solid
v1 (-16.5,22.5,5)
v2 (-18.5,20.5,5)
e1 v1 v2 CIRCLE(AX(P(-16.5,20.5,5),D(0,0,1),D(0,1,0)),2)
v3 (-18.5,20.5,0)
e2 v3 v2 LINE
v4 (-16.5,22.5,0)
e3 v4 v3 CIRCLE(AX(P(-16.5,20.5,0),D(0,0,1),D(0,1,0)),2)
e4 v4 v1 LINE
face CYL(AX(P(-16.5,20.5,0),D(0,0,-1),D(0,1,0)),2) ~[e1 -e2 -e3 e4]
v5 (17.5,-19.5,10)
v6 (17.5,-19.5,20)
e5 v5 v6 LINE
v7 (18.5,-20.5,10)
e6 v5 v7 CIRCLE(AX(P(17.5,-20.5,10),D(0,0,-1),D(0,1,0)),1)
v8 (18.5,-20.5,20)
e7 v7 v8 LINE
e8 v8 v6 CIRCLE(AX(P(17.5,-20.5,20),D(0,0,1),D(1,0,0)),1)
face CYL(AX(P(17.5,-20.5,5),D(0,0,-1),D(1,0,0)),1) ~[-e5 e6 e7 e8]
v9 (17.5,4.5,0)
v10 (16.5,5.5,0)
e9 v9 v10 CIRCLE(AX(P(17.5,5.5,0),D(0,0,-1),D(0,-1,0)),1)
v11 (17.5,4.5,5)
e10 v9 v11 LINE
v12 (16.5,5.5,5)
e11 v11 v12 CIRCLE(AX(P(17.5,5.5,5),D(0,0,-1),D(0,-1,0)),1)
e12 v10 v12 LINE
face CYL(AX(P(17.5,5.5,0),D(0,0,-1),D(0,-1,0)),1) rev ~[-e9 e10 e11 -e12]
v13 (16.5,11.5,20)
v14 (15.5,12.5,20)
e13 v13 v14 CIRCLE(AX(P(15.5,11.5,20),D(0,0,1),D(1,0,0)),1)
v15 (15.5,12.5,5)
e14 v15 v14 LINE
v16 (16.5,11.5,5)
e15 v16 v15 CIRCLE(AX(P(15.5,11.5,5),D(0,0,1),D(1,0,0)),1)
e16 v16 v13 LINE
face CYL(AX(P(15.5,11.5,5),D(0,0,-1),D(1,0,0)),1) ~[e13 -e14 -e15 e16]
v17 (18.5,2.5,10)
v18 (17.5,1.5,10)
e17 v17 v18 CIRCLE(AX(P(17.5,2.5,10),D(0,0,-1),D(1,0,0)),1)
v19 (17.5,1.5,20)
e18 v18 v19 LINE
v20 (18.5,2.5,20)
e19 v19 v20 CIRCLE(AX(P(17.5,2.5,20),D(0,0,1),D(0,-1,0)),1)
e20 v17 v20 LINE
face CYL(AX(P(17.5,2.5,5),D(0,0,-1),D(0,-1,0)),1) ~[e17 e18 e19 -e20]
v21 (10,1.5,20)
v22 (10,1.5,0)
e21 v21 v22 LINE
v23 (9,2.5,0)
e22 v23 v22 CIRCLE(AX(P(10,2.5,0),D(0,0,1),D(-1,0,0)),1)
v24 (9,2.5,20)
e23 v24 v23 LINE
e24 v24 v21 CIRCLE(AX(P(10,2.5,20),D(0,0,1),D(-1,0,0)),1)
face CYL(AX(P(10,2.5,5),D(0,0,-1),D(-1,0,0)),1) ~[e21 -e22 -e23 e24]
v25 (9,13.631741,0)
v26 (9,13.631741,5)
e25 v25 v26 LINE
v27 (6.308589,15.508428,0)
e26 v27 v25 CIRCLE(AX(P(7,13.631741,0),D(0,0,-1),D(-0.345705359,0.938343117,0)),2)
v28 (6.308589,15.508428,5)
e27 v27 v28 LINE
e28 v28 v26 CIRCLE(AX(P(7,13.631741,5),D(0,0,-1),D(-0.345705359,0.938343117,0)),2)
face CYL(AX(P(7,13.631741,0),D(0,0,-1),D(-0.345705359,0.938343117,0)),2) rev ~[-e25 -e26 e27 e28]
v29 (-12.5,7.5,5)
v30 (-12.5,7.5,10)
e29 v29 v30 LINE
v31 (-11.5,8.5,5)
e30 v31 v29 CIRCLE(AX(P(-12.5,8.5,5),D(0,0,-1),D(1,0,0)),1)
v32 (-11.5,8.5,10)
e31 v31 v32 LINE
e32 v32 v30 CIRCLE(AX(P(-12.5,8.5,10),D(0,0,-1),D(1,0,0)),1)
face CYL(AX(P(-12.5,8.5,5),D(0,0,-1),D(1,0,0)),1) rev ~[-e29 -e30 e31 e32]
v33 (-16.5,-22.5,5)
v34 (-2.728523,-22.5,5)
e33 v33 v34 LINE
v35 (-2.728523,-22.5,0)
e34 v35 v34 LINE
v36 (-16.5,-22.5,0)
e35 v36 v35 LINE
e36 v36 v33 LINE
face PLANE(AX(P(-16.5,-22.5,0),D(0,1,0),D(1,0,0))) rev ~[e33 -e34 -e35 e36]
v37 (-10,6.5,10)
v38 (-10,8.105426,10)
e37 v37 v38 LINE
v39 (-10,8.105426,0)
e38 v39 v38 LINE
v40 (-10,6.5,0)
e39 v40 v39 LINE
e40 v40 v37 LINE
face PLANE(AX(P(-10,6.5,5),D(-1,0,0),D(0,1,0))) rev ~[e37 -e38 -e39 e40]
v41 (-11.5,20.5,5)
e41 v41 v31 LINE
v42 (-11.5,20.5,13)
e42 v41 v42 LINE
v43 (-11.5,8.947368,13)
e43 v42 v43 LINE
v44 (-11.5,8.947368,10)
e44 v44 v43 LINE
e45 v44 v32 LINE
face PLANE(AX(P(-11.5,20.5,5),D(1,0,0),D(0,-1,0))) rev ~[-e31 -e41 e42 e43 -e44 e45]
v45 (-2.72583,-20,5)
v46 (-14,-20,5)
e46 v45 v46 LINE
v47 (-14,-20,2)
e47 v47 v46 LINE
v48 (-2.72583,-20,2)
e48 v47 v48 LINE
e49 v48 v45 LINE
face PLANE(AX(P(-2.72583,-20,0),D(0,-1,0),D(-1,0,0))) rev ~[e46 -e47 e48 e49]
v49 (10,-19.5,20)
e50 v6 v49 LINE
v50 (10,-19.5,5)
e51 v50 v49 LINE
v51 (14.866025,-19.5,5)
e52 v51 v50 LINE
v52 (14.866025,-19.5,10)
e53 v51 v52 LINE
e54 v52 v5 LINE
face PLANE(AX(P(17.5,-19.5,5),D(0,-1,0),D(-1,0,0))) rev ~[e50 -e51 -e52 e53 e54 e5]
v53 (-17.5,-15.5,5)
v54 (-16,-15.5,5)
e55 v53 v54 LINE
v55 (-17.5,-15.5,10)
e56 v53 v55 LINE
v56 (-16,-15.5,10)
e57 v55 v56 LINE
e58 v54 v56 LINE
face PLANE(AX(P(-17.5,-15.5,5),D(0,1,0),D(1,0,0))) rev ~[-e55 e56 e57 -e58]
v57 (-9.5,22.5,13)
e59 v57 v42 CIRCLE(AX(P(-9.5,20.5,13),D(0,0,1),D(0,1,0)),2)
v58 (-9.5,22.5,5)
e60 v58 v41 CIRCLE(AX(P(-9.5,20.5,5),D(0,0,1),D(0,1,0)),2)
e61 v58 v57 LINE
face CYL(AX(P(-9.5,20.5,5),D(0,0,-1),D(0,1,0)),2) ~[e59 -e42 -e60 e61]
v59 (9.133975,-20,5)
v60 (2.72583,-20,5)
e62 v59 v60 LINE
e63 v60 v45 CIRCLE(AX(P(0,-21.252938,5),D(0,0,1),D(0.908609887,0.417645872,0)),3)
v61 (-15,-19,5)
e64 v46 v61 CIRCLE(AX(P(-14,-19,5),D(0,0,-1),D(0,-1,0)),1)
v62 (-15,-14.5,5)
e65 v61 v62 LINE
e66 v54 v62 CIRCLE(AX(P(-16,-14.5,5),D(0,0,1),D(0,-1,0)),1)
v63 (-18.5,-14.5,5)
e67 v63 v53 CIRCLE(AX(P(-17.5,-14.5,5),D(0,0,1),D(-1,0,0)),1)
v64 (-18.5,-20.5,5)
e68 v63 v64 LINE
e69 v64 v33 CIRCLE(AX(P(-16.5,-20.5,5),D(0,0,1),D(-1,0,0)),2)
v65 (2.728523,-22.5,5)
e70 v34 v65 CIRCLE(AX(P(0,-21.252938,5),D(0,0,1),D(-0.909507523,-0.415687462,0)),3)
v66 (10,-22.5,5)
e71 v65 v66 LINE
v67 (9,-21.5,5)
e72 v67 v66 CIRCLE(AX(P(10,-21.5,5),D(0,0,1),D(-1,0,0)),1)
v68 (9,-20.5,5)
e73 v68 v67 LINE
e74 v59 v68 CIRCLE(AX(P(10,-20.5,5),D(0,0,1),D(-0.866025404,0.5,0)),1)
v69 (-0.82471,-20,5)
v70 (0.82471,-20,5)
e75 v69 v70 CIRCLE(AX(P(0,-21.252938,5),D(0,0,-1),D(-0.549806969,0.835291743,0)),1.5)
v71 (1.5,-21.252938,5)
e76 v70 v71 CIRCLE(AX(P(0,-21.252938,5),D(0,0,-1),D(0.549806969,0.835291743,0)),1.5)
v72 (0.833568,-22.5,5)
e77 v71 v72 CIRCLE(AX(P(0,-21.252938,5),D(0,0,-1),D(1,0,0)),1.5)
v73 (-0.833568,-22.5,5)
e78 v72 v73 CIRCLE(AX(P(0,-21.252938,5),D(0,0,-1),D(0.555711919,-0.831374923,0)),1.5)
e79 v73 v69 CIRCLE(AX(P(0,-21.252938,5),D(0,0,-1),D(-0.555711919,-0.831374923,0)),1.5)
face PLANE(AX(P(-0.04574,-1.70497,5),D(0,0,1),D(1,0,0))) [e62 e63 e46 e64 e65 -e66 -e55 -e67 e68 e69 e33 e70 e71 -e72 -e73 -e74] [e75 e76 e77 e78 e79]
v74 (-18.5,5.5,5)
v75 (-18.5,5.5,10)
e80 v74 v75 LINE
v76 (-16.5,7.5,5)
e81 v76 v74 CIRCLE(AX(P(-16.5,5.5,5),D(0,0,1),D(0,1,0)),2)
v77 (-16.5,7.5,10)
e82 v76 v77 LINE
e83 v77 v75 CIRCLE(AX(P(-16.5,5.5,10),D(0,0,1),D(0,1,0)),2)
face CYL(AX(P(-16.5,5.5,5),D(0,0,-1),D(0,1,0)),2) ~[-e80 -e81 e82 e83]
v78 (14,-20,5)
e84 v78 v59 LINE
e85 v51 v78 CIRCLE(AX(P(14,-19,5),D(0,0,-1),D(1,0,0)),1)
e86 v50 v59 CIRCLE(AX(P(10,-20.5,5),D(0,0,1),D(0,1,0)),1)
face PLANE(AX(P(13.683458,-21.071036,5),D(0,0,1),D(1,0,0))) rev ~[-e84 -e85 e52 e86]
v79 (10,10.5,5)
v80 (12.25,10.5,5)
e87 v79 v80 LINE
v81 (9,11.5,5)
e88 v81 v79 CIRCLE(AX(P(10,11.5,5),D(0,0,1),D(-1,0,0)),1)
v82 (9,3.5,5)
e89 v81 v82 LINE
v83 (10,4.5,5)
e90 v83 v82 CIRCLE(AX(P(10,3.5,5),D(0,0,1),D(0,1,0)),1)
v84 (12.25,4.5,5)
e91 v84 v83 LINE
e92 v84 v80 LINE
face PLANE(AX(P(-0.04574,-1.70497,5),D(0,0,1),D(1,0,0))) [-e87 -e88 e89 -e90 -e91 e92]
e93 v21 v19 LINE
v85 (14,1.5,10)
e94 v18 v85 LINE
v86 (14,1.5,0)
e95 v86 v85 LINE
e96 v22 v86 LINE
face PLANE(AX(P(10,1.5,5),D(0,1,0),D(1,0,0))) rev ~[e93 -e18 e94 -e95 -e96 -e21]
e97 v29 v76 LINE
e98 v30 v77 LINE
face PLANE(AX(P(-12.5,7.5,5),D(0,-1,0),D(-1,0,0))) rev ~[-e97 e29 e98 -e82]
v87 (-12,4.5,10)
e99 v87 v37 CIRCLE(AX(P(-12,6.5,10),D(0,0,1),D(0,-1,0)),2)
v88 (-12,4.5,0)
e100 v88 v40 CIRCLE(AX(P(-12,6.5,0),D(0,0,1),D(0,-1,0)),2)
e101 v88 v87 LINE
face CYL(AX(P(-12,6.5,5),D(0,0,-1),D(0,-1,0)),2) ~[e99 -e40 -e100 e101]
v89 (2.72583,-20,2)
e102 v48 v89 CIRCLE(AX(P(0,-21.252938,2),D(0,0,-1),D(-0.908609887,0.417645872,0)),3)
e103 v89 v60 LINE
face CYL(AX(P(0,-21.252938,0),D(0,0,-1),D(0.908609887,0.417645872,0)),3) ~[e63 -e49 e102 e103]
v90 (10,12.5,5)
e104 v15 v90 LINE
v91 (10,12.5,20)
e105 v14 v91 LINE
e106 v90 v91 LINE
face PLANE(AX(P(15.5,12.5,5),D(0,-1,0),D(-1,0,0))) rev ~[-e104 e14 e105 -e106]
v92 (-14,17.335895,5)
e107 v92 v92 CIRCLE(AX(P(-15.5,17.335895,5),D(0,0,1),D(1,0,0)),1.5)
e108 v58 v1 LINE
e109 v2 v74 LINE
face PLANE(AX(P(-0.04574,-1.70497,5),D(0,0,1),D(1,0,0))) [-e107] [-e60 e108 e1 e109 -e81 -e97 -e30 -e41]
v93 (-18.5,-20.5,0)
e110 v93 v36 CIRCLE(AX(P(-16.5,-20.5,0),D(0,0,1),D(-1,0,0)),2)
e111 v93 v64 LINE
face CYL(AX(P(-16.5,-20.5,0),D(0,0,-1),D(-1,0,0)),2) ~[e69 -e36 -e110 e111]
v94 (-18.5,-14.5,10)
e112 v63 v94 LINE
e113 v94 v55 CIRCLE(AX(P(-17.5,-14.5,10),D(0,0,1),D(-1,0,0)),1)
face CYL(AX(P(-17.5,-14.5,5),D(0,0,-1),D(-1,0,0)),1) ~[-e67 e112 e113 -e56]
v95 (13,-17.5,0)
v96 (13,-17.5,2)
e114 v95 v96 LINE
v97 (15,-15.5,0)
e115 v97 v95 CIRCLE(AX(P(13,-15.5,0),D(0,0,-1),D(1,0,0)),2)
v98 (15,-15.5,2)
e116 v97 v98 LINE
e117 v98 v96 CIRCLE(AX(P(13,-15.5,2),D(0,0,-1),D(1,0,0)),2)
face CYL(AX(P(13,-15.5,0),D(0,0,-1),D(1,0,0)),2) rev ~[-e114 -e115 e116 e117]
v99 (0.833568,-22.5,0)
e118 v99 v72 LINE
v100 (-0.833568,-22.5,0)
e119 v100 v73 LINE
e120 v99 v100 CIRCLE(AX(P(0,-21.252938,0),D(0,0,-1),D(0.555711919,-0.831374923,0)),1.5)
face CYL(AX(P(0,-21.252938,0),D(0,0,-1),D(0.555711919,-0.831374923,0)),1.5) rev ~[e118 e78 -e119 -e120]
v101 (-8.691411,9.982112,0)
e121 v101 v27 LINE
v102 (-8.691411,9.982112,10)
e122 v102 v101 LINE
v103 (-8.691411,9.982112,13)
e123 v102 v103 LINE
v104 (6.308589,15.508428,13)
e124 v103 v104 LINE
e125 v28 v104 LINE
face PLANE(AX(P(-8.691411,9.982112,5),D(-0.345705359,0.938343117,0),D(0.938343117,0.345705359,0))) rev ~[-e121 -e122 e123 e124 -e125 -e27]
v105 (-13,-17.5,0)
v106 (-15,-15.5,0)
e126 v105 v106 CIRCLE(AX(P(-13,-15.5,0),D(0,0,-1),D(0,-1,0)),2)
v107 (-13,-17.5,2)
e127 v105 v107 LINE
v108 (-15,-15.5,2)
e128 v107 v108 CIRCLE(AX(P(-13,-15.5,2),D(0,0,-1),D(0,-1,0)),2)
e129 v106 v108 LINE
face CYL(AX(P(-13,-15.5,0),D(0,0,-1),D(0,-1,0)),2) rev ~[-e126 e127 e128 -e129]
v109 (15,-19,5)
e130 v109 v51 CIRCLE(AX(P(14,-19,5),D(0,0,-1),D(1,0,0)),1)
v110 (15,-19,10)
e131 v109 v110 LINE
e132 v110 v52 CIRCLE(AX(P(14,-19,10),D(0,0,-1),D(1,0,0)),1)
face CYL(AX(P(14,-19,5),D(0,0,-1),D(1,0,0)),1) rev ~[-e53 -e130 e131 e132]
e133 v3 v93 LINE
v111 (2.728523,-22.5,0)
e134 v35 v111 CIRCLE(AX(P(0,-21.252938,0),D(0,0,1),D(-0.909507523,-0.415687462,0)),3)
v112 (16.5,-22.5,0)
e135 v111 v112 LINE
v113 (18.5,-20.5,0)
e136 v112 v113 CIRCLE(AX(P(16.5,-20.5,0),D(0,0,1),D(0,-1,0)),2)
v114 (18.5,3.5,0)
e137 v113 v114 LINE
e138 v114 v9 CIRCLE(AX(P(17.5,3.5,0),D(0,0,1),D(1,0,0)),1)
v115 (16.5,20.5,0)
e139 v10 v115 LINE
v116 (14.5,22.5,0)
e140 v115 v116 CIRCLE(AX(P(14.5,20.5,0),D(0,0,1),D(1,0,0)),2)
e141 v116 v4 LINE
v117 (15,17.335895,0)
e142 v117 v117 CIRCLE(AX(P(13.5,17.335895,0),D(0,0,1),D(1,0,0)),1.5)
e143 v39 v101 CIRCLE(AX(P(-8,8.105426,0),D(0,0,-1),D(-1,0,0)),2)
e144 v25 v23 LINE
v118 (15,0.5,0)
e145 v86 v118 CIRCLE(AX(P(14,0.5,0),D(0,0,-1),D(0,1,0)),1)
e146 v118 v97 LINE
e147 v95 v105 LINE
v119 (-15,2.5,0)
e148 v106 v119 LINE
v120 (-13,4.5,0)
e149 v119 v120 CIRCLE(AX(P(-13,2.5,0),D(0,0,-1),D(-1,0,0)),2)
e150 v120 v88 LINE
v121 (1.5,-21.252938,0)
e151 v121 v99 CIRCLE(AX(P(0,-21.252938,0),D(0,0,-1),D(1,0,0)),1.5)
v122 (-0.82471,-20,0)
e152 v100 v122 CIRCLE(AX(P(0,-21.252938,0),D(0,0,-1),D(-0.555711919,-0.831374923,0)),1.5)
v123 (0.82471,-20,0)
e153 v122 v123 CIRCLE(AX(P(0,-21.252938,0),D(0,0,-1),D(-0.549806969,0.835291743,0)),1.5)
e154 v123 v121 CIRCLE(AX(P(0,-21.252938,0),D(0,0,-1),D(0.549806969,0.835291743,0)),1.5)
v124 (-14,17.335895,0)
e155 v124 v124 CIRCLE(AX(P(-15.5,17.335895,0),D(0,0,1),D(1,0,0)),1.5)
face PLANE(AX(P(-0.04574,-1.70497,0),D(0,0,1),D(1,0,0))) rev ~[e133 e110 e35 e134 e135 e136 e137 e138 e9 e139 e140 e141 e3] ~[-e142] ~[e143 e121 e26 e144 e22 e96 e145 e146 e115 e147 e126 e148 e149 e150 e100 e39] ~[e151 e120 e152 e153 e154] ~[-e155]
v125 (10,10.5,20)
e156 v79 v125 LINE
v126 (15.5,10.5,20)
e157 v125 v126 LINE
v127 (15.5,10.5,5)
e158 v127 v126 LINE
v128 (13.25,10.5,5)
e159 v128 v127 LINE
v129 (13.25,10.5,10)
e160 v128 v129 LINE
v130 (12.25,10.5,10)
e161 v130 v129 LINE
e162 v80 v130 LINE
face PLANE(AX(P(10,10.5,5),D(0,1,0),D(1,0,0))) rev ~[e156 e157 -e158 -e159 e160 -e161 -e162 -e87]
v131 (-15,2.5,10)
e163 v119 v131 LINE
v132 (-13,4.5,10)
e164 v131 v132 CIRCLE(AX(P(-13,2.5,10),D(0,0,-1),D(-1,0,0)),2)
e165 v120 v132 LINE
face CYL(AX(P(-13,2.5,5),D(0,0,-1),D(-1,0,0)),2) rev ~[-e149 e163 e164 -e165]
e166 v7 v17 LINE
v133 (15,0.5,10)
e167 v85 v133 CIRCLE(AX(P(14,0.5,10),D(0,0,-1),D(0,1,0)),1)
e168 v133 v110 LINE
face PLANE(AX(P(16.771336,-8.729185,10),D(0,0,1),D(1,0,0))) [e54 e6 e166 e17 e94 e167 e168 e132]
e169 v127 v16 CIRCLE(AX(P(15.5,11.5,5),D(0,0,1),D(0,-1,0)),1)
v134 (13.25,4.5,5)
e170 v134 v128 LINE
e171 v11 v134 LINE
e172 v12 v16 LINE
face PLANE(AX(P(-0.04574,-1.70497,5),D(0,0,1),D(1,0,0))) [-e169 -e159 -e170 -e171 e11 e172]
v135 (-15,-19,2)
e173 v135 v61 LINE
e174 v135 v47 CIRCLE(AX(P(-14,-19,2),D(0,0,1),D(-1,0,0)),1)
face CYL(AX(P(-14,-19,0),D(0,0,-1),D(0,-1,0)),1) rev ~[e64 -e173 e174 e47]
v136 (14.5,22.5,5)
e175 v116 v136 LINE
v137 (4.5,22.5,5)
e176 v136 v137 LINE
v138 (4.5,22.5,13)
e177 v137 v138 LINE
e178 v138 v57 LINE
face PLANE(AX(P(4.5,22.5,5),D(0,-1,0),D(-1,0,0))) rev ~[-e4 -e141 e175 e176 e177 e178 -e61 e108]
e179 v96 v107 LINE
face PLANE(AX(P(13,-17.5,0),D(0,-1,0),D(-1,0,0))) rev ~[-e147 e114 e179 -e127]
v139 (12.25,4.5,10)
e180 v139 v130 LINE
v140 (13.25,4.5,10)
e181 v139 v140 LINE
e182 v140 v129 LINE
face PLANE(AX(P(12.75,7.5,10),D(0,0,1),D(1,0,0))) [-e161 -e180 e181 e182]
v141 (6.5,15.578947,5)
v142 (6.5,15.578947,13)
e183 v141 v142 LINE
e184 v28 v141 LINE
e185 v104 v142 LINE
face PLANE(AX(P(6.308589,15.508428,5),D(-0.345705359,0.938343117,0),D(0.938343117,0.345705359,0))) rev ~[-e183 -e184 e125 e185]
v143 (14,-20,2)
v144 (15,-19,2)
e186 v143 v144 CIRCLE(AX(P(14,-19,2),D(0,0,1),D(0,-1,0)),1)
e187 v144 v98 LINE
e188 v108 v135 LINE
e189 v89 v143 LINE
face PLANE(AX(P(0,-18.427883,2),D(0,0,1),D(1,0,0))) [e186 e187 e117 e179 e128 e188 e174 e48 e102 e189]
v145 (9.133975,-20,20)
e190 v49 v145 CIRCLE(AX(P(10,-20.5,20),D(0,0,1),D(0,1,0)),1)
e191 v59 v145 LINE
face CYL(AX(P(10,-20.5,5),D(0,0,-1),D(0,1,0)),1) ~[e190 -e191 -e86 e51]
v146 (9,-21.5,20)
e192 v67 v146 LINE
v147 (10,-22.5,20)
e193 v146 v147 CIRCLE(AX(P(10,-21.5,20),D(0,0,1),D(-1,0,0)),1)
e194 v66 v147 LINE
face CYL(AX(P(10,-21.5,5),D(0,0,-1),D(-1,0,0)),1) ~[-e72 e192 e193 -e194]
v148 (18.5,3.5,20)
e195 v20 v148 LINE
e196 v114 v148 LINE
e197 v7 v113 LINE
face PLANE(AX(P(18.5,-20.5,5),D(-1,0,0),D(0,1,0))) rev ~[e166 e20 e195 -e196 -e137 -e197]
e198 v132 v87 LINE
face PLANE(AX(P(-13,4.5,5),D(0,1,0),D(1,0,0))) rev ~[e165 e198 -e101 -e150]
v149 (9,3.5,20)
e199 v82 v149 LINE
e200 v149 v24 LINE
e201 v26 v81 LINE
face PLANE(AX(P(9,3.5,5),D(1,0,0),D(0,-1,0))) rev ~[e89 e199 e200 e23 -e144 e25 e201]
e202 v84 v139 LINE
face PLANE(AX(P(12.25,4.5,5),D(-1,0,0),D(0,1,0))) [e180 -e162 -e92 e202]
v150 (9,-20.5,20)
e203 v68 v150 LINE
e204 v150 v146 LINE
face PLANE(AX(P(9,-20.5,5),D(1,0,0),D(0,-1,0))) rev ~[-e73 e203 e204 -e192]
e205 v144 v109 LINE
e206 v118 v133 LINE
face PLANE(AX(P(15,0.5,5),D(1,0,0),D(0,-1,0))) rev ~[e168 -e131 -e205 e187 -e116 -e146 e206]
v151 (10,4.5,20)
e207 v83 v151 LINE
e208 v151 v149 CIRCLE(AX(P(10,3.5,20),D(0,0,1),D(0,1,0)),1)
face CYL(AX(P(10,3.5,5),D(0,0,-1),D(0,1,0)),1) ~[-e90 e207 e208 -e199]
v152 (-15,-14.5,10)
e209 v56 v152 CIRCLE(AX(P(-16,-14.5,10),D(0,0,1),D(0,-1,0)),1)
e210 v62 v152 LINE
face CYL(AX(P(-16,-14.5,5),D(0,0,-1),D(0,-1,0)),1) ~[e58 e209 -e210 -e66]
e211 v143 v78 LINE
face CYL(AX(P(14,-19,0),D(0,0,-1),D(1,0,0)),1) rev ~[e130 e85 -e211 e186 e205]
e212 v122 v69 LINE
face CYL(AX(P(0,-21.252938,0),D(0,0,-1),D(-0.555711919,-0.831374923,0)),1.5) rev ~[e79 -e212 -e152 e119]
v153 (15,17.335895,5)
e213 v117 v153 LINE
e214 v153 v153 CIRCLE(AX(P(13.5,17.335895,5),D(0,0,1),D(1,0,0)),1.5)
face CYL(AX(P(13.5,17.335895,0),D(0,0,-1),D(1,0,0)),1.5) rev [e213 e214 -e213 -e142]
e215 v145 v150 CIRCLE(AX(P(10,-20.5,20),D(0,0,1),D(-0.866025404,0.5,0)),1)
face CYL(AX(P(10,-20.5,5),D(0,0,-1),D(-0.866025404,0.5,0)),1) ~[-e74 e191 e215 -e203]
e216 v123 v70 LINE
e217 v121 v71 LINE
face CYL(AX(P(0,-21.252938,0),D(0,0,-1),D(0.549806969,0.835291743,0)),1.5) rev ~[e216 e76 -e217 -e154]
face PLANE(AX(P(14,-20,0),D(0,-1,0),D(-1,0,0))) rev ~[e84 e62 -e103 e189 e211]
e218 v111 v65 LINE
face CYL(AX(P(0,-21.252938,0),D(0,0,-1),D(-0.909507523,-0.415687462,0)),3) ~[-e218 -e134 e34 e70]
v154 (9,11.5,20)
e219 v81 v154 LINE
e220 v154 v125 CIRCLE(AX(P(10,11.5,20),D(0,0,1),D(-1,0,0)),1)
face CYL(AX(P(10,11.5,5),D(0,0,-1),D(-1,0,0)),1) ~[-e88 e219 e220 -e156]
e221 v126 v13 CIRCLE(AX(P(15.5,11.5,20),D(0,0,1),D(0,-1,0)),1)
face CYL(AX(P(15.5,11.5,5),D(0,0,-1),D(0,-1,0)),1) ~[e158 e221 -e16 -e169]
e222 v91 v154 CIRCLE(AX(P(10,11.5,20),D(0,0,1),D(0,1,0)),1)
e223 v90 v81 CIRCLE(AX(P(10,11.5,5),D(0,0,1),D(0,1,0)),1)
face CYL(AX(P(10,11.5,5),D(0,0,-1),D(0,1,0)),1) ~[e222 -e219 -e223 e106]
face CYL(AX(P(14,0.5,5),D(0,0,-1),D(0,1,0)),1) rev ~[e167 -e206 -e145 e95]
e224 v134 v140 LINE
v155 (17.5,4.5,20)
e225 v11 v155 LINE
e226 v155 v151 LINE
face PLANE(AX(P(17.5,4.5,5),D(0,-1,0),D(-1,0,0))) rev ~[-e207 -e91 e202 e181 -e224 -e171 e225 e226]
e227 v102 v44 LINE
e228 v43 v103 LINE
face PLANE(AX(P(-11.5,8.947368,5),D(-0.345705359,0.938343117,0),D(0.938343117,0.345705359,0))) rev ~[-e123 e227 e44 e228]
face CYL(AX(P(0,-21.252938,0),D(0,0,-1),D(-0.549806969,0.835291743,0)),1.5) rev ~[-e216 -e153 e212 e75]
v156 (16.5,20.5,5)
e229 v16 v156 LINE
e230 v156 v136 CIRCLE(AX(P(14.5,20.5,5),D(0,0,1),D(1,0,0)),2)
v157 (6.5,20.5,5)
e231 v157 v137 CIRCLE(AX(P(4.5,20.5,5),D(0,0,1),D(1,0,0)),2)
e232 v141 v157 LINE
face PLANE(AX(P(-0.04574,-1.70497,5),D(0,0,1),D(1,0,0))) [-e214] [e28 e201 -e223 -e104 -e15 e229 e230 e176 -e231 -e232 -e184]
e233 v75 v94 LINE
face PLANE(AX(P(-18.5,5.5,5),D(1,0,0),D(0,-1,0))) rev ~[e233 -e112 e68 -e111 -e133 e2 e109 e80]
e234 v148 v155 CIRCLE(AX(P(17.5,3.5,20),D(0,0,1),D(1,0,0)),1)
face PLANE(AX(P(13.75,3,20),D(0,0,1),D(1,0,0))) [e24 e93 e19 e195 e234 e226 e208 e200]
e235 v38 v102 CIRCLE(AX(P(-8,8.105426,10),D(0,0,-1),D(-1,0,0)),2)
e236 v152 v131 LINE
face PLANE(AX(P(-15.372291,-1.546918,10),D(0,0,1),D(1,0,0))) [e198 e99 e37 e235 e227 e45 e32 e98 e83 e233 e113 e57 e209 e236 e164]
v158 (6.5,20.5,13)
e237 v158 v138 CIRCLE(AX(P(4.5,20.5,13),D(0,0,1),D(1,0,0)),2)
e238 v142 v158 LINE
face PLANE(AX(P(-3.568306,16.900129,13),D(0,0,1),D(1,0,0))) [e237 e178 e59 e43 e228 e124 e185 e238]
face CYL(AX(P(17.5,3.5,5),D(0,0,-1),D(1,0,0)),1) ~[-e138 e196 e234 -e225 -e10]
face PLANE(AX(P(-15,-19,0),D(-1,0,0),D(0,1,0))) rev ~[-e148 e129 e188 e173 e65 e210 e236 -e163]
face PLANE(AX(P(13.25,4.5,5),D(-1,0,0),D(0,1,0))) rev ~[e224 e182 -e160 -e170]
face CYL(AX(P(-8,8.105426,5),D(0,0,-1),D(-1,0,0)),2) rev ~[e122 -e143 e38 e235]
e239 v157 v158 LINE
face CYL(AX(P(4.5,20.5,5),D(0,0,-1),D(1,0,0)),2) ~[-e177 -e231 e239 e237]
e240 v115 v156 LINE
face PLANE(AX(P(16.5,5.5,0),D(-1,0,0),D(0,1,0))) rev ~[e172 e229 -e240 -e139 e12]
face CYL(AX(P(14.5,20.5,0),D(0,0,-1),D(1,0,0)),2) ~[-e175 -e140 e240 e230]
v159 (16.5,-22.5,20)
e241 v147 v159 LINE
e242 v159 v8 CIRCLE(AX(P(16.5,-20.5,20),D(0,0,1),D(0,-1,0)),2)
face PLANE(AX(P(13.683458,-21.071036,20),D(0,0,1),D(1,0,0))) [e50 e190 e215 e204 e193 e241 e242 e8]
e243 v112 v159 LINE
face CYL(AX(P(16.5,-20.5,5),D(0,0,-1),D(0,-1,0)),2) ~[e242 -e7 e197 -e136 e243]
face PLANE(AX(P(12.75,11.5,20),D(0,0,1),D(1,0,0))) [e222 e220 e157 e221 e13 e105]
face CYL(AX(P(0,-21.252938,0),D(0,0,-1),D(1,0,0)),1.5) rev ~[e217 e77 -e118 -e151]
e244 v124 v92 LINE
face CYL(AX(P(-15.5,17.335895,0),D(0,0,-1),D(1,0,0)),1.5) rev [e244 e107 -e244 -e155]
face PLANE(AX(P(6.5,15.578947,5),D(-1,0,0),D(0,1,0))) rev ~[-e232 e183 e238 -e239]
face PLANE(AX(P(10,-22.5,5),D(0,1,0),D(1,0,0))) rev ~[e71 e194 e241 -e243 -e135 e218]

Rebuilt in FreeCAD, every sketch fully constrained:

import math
import FreeCAD as App
import Part
import Sketcher

doc = App.newDocument("Part")
params = doc.addObject("Spreadsheet::Sheet", "Params")
for row, (alias, value) in enumerate([
    ("sketch1_radius", "3 mm"),
    ("sketch1_radius2", "1 mm"),
    ("sketch1_radius3", "2 mm"),
    ("sketch1_width", "26 mm"),
    ("sketch1_height", "3.5 mm"),
    ("pad1_length", "2 mm"),
    ("sketch2_diameter", "3 mm"),
    ("sketch2_radius", "1 mm"),
    ("sketch2_radius2", "3 mm"),
    ("sketch2_width", "31 mm"),
    ("sketch2_width2", "1 mm"),
    ("pad2_length", "5 mm"),
    ("sketch3_radius", "1 mm"),
    ("sketch3_radius2", "2 mm"),
    ("sketch3_width", "1 mm"),
    ("sketch3_width2", "4 mm"),
    ("sketch3_height", "17 mm"),
    ("pad3_length", "5 mm"),
    ("sketch4_radius", "2 mm"),
    ("sketch4_width", "14 mm"),
    ("pad4_length", "8 mm"),
    ("sketch5_radius", "1 mm"),
    ("sketch5_radius2", "2 mm"),
    ("sketch5_width", "6.5 mm"),
    ("pad5_length", "15 mm"),
    ("sketch6_radius", "1 mm"),
    ("sketch6_height", "1 mm"),
    ("sketch6_width", "5.5 mm"),
    ("sketch6_width2", "7.5 mm"),
    ("pad6_length", "15 mm"),
    ("sketch7_radius", "1 mm"),
    ("sketch7_width", "1 mm"),
    ("sketch7_height", "6 mm"),
    ("sketch7_height2", "23 mm"),
    ("sketch7_width2", "3.5 mm"),
    ("pad7_length", "5 mm"),
], start=1):
    params.set(f"A{row}", alias)
    params.set(f"B{row}", "=" + value)
    params.setAlias(f"B{row}", alias)

body = doc.addObject("PartDesign::Body", "Body")

sketch1 = body.newObject("Sketcher::SketchObject", "Sketch")
sketch1.AttachmentSupport = (doc.getObject("XY_Plane"), [""])
sketch1.MapMode = "FlatFace"
sketch1.addGeometry([
    Part.LineSegment(App.Vector(-14, -20, 0), App.Vector(-2.72583, -20, 0)),
    Part.ArcOfCircle(Part.Circle(App.Vector(0, -21.252938, 0), App.Vector(0, 0, 1), 3), math.radians(24.68605), math.radians(155.31395)),
    Part.LineSegment(App.Vector(2.72583, -20, 0), App.Vector(14, -20, 0)),
    Part.ArcOfCircle(Part.Circle(App.Vector(14, -19, 0), App.Vector(0, 0, 1), 1), math.radians(-90), math.radians(0)),
    Part.LineSegment(App.Vector(15, -19, 0), App.Vector(15, -15.5, 0)),
    Part.ArcOfCircle(Part.Circle(App.Vector(13, -15.5, 0), App.Vector(0, 0, 1), 2), math.radians(-90), math.radians(0)),
    Part.LineSegment(App.Vector(13, -17.5, 0), App.Vector(-13, -17.5, 0)),
    Part.ArcOfCircle(Part.Circle(App.Vector(-13, -15.5, 0), App.Vector(0, 0, 1), 2), math.radians(180), math.radians(270)),
    Part.LineSegment(App.Vector(-15, -15.5, 0), App.Vector(-15, -19, 0)),
    Part.ArcOfCircle(Part.Circle(App.Vector(-14, -19, 0), App.Vector(0, 0, 1), 1), math.radians(180), math.radians(270)),
], False)
sketch1.addConstraint([
    Sketcher.Constraint("Coincident", 0, 2, 1, 2),
    Sketcher.Constraint("Coincident", 1, 1, 2, 1),
    Sketcher.Constraint("Tangent", 2, 2, 3, 1),
    Sketcher.Constraint("Tangent", 3, 2, 4, 1),
    Sketcher.Constraint("Tangent", 4, 2, 5, 2),
    Sketcher.Constraint("Tangent", 5, 1, 6, 1),
    Sketcher.Constraint("Tangent", 6, 2, 7, 2),
    Sketcher.Constraint("Tangent", 7, 1, 8, 1),
    Sketcher.Constraint("Tangent", 8, 2, 9, 1),
    Sketcher.Constraint("Tangent", 9, 2, 0, 1),
    Sketcher.Constraint("Horizontal", 0),
    Sketcher.Constraint("Horizontal", 2),
    Sketcher.Constraint("Vertical", 4),
    Sketcher.Constraint("Horizontal", 6),
    Sketcher.Constraint("Vertical", 8),
    Sketcher.Constraint("Equal", 5, 7),
    Sketcher.Constraint("Equal", 3, 9),
    Sketcher.Constraint("Symmetric", 3, 3, 9, 3, -2),
    Sketcher.Constraint("PointOnObject", 1, 3, -2),
    Sketcher.Constraint("Radius", 1, 3.0),
    Sketcher.Constraint("Radius", 3, 1.0),
    Sketcher.Constraint("Radius", 5, 2.0),
    Sketcher.Constraint("DistanceX", 6, 2, 6, 1, 26.0),
    Sketcher.Constraint("DistanceY", 4, 1, 4, 2, 3.5),
    Sketcher.Constraint("DistanceY", 3, 3, -1, 1, 19.0),
    Sketcher.Constraint("DistanceX", 0, 1, 0, 2, 11.27417),
])
sketch1.setExpression("Constraints[19]", "Params.sketch1_radius")
sketch1.setExpression("Constraints[20]", "Params.sketch1_radius2")
sketch1.setExpression("Constraints[21]", "Params.sketch1_radius3")
sketch1.setExpression("Constraints[22]", "Params.sketch1_width")
sketch1.setExpression("Constraints[23]", "Params.sketch1_height")
pad1 = body.newObject("PartDesign::Pad", "Pad")
pad1.Profile = sketch1
pad1.setExpression("Length", "Params.pad1_length")

sketch2 = body.newObject("Sketcher::SketchObject", "Sketch001")
sketch2.AttachmentSupport = (doc.getObject("XY_Plane"), [""])
sketch2.MapMode = "FlatFace"
sketch2.addGeometry([
    Part.ArcOfCircle(Part.Circle(App.Vector(17.5, 5.5, 0), App.Vector(0, 0, 1), 1), math.radians(180), math.radians(270)),
    Part.LineSegment(App.Vector(16.5, 5.5, 0), App.Vector(16.5, 20.5, 0)),
    Part.ArcOfCircle(Part.Circle(App.Vector(14.5, 20.5, 0), App.Vector(0, 0, 1), 2), math.radians(0), math.radians(90)),
    Part.LineSegment(App.Vector(14.5, 22.5, 0), App.Vector(-16.5, 22.5, 0)),
    Part.ArcOfCircle(Part.Circle(App.Vector(-16.5, 20.5, 0), App.Vector(0, 0, 1), 2), math.radians(90), math.radians(180)),
    Part.LineSegment(App.Vector(-18.5, 20.5, 0), App.Vector(-18.5, -20.5, 0)),
    Part.ArcOfCircle(Part.Circle(App.Vector(-16.5, -20.5, 0), App.Vector(0, 0, 1), 2), math.radians(180), math.radians(270)),
    Part.LineSegment(App.Vector(-16.5, -22.5, 0), App.Vector(-2.728523, -22.5, 0)),
    Part.ArcOfCircle(Part.Circle(App.Vector(0, -21.252938, 0), App.Vector(0, 0, 1), 3), math.radians(-155.437383), math.radians(-24.562617)),
    Part.LineSegment(App.Vector(2.728523, -22.5, 0), App.Vector(16.5, -22.5, 0)),
    Part.ArcOfCircle(Part.Circle(App.Vector(16.5, -20.5, 0), App.Vector(0, 0, 1), 2), math.radians(-90), math.radians(0)),
    Part.LineSegment(App.Vector(18.5, -20.5, 0), App.Vector(18.5, 3.5, 0)),
    Part.ArcOfCircle(Part.Circle(App.Vector(17.5, 3.5, 0), App.Vector(0, 0, 1), 1), math.radians(0), math.radians(90)),
    Part.ArcOfCircle(Part.Circle(App.Vector(0, -21.252938, 0), App.Vector(0, 0, 1), 1.5), math.radians(0), math.radians(56.646229)),
    Part.ArcOfCircle(Part.Circle(App.Vector(0, -21.252938, 0), App.Vector(0, 0, 1), 1.5), math.radians(-56.240236), math.radians(0)),
    Part.ArcOfCircle(Part.Circle(App.Vector(0, -21.252938, 0), App.Vector(0, 0, 1), 1.5), math.radians(-123.759764), math.radians(-56.240236)),
    Part.ArcOfCircle(Part.Circle(App.Vector(0, -21.252938, 0), App.Vector(0, 0, 1), 1.5), math.radians(123.353771), math.radians(236.240236)),
    Part.ArcOfCircle(Part.Circle(App.Vector(0, -21.252938, 0), App.Vector(0, 0, 1), 1.5), math.radians(56.646229), math.radians(123.353771)),
    Part.LineSegment(App.Vector(14, -20, 0), App.Vector(2.72583, -20, 0)),
    Part.ArcOfCircle(Part.Circle(App.Vector(0, -21.252938, 0), App.Vector(0, 0, 1), 3), math.radians(24.68605), math.radians(155.31395)),
    Part.LineSegment(App.Vector(-2.72583, -20, 0), App.Vector(-14, -20, 0)),
    Part.ArcOfCircle(Part.Circle(App.Vector(-14, -19, 0), App.Vector(0, 0, 1), 1), math.radians(180), math.radians(270)),
    Part.LineSegment(App.Vector(-15, -19, 0), App.Vector(-15, 2.5, 0)),
    Part.ArcOfCircle(Part.Circle(App.Vector(-13, 2.5, 0), App.Vector(0, 0, 1), 2), math.radians(90), math.radians(180)),
    Part.LineSegment(App.Vector(-13, 4.5, 0), App.Vector(-12, 4.5, 0)),
    Part.ArcOfCircle(Part.Circle(App.Vector(-12, 6.5, 0), App.Vector(0, 0, 1), 2), math.radians(-90), math.radians(0)),
    Part.LineSegment(App.Vector(-10, 6.5, 0), App.Vector(-10, 8.105426, 0)),
    Part.ArcOfCircle(Part.Circle(App.Vector(-8, 8.105426, 0), App.Vector(0, 0, 1), 2), math.radians(110.224859), math.radians(180)),
    Part.LineSegment(App.Vector(-8.691411, 9.982112, 0), App.Vector(6.308589, 15.508428, 0)),
    Part.ArcOfCircle(Part.Circle(App.Vector(7, 13.631741, 0), App.Vector(0, 0, 1), 2), math.radians(0), math.radians(110.224859)),
    Part.LineSegment(App.Vector(9, 13.631741, 0), App.Vector(9, 2.5, 0)),
    Part.ArcOfCircle(Part.Circle(App.Vector(10, 2.5, 0), App.Vector(0, 0, 1), 1), math.radians(180), math.radians(270)),
    Part.LineSegment(App.Vector(10, 1.5, 0), App.Vector(14, 1.5, 0)),
    Part.ArcOfCircle(Part.Circle(App.Vector(14, 0.5, 0), App.Vector(0, 0, 1), 1), math.radians(0), math.radians(90)),
    Part.LineSegment(App.Vector(15, 0.5, 0), App.Vector(15, -19, 0)),
    Part.ArcOfCircle(Part.Circle(App.Vector(14, -19, 0), App.Vector(0, 0, 1), 1), math.radians(-90), math.radians(0)),
    Part.Circle(App.Vector(-15.5, 17.335895, 0), App.Vector(0, 0, 1), 1.5),
    Part.Circle(App.Vector(13.5, 17.335895, 0), App.Vector(0, 0, 1), 1.5),
], False)
sketch2.addConstraint([
    Sketcher.Constraint("Tangent", 0, 1, 1, 1),
    Sketcher.Constraint("Tangent", 1, 2, 2, 1),
    Sketcher.Constraint("Tangent", 2, 2, 3, 1),
    Sketcher.Constraint("Tangent", 3, 2, 4, 1),
    Sketcher.Constraint("Tangent", 4, 2, 5, 1),
    Sketcher.Constraint("Tangent", 5, 2, 6, 1),
    Sketcher.Constraint("Tangent", 6, 2, 7, 1),
    Sketcher.Constraint("Coincident", 7, 2, 8, 1),
    Sketcher.Constraint("Coincident", 8, 2, 9, 1),
    Sketcher.Constraint("Tangent", 9, 2, 10, 1),
    Sketcher.Constraint("Tangent", 10, 2, 11, 1),
    Sketcher.Constraint("Tangent", 11, 2, 12, 1),
    Sketcher.Constraint("Tangent", 12, 2, 0, 2),
    Sketcher.Constraint("Tangent", 13, 1, 14, 2),
    Sketcher.Constraint("Tangent", 14, 1, 15, 2),
    Sketcher.Constraint("Tangent", 15, 1, 16, 2),
    Sketcher.Constraint("Tangent", 16, 1, 17, 2),
    Sketcher.Constraint("Tangent", 17, 1, 13, 2),
    Sketcher.Constraint("Coincident", 18, 2, 19, 1),
    Sketcher.Constraint("Coincident", 19, 2, 20, 1),
    Sketcher.Constraint("Tangent", 20, 2, 21, 2),
    Sketcher.Constraint("Tangent", 21, 1, 22, 1),
    Sketcher.Constraint("Tangent", 22, 2, 23, 2),
    Sketcher.Constraint("Tangent", 23, 1, 24, 1),
    Sketcher.Constraint("Tangent", 24, 2, 25, 1),
    Sketcher.Constraint("Tangent", 25, 2, 26, 1),
    Sketcher.Constraint("Tangent", 26, 2, 27, 2),
    Sketcher.Constraint("Tangent", 27, 1, 28, 1),
    Sketcher.Constraint("Tangent", 28, 2, 29, 2),
    Sketcher.Constraint("Tangent", 29, 1, 30, 1),
    Sketcher.Constraint("Tangent", 30, 2, 31, 1),
    Sketcher.Constraint("Tangent", 31, 2, 32, 1),
    Sketcher.Constraint("Tangent", 32, 2, 33, 2),
    Sketcher.Constraint("Tangent", 33, 1, 34, 1),
    Sketcher.Constraint("Tangent", 34, 2, 35, 2),
    Sketcher.Constraint("Tangent", 35, 1, 18, 1),
    Sketcher.Constraint("Vertical", 1),
    Sketcher.Constraint("Horizontal", 3),
    Sketcher.Constraint("Vertical", 5),
    Sketcher.Constraint("Horizontal", 7),
    Sketcher.Constraint("Horizontal", 9),
    Sketcher.Constraint("Vertical", 11),
    Sketcher.Constraint("Horizontal", 18),
    Sketcher.Constraint("Horizontal", 20),
    Sketcher.Constraint("Vertical", 22),
    Sketcher.Constraint("Horizontal", 24),
    Sketcher.Constraint("Vertical", 26),
    Sketcher.Constraint("Vertical", 30),
    Sketcher.Constraint("Horizontal", 32),
    Sketcher.Constraint("Vertical", 34),
    Sketcher.Constraint("Coincident", 13, 3, 8, 3),
    Sketcher.Constraint("Coincident", 15, 3, 8, 3),
    Sketcher.Constraint("Coincident", 19, 3, 8, 3),
    Sketcher.Constraint("Equal", 2, 4),
    Sketcher.Constraint("Equal", 4, 6),
    Sketcher.Constraint("Equal", 6, 10),
    Sketcher.Constraint("Equal", 0, 12),
    Sketcher.Constraint("Equal", 8, 19),
    Sketcher.Constraint("Equal", 12, 21),
    Sketcher.Constraint("Equal", 10, 23),
    Sketcher.Constraint("Equal", 23, 25),
    Sketcher.Constraint("Equal", 25, 27),
    Sketcher.Constraint("Equal", 27, 29),
    Sketcher.Constraint("Equal", 21, 31),
    Sketcher.Constraint("Equal", 31, 33),
    Sketcher.Constraint("Equal", 33, 35),
    Sketcher.Constraint("Equal", 17, 36),
    Sketcher.Constraint("Equal", 36, 37),
    Sketcher.Constraint("Symmetric", 4, 3, 10, 3, -1, 1),
    Sketcher.Constraint("Symmetric", 21, 3, 35, 3, -2),
    Sketcher.Constraint("Symmetric", 7, 2, 8, 2, -2),
    Sketcher.Constraint("Horizontal", 23, 3, 31, 3),
    Sketcher.Constraint("Horizontal", 36, 3, 37, 3),
    Sketcher.Constraint("Horizontal", 19, 3, 13, 1),
    Sketcher.Constraint("Horizontal", 9, 2, 14, 1),
    Sketcher.Constraint("Horizontal", 14, 1, 15, 1),
    Sketcher.Constraint("Horizontal", 16, 1, 17, 1),
    Sketcher.Constraint("Horizontal", 17, 1, 18, 2),
    Sketcher.Constraint("Horizontal", 12, 2, 23, 1),
    Sketcher.Constraint("Vertical", 0, 3, 12, 3),
    Sketcher.Constraint("Vertical", 10, 3, 0, 1),
    Sketcher.Constraint("Diameter", 36, 3.0),
    Sketcher.Constraint("Radius", 0, 1.0),
    Sketcher.Constraint("Radius", 8, 3.0),
    Sketcher.Constraint("DistanceX", 3, 2, 3, 1, 31.0),
    Sketcher.Constraint("DistanceX", 24, 1, 24, 2, 1.0),
    Sketcher.Constraint("DistanceX", 32, 1, 32, 2, 4.0),
    Sketcher.Constraint("DistanceY", 1, 1, 1, 2, 15.0),
    Sketcher.Constraint("DistanceY", 5, 2, 5, 1, 41.0),
    Sketcher.Constraint("DistanceY", 22, 1, 22, 2, 21.5),
    Sketcher.Constraint("DistanceX", 21, 3, -1, 1, 14.0),
    Sketcher.Constraint("DistanceX", 4, 3, 36, 3, 1.0),
    Sketcher.Constraint("DistanceX", 37, 3, 2, 3, 1.0),
    Sketcher.Constraint("DistanceX", 18, 2, 18, 1, 11.27417),
    Sketcher.Constraint("DistanceY", 30, 2, 30, 1, 11.131741),
    Sketcher.Constraint("DistanceY", 26, 1, 26, 2, 1.605426),
    Sketcher.Constraint("DistanceY", 27, 3, 36, 3, 9.230469),
])
sketch2.setExpression("Constraints[81]", "Params.sketch2_diameter")
sketch2.setExpression("Constraints[82]", "Params.sketch2_radius")
sketch2.setExpression("Constraints[83]", "Params.sketch2_radius2")
sketch2.setExpression("Constraints[84]", "Params.sketch2_width")
sketch2.setExpression("Constraints[85]", "Params.sketch2_width2")
pad2 = body.newObject("PartDesign::Pad", "Pad001")
pad2.Profile = sketch2
pad2.setExpression("Length", "Params.pad2_length")

sketch3 = body.newObject("Sketcher::SketchObject", "Sketch002")
sketch3.AttachmentSupport = (doc.getObject("XY_Plane"), [""])
sketch3.MapMode = "FlatFace"
sketch3.AttachmentOffset = App.Placement(App.Vector(0, 0, 5), App.Rotation())
sketch3.addGeometry([
    Part.ArcOfCircle(Part.Circle(App.Vector(-17.5, -14.5, 0), App.Vector(0, 0, 1), 1), math.radians(180), math.radians(270)),
    Part.LineSegment(App.Vector(-17.5, -15.5, 0), App.Vector(-16, -15.5, 0)),
    Part.ArcOfCircle(Part.Circle(App.Vector(-16, -14.5, 0), App.Vector(0, 0, 1), 1), math.radians(-90), math.radians(0)),
    Part.LineSegment(App.Vector(-15, -14.5, 0), App.Vector(-15, 2.5, 0)),
    Part.ArcOfCircle(Part.Circle(App.Vector(-13, 2.5, 0), App.Vector(0, 0, 1), 2), math.radians(90), math.radians(180)),
    Part.LineSegment(App.Vector(-13, 4.5, 0), App.Vector(-12, 4.5, 0)),
    Part.ArcOfCircle(Part.Circle(App.Vector(-12, 6.5, 0), App.Vector(0, 0, 1), 2), math.radians(-90), math.radians(0)),
    Part.LineSegment(App.Vector(-10, 6.5, 0), App.Vector(-10, 8.105426, 0)),
    Part.ArcOfCircle(Part.Circle(App.Vector(-8, 8.105426, 0), App.Vector(0, 0, 1), 2), math.radians(110.224859), math.radians(180)),
    Part.LineSegment(App.Vector(-8.691411, 9.982112, 0), App.Vector(-11.5, 8.947368, 0)),
    Part.LineSegment(App.Vector(-11.5, 8.947368, 0), App.Vector(-11.5, 8.5, 0)),
    Part.ArcOfCircle(Part.Circle(App.Vector(-12.5, 8.5, 0), App.Vector(0, 0, 1), 1), math.radians(-90), math.radians(0)),
    Part.LineSegment(App.Vector(-12.5, 7.5, 0), App.Vector(-16.5, 7.5, 0)),
    Part.ArcOfCircle(Part.Circle(App.Vector(-16.5, 5.5, 0), App.Vector(0, 0, 1), 2), math.radians(90), math.radians(180)),
    Part.LineSegment(App.Vector(-18.5, 5.5, 0), App.Vector(-18.5, -14.5, 0)),
], False)
sketch3.addConstraint([
    Sketcher.Constraint("Tangent", 0, 2, 1, 1),
    Sketcher.Constraint("Tangent", 1, 2, 2, 1),
    Sketcher.Constraint("Tangent", 2, 2, 3, 1),
    Sketcher.Constraint("Tangent", 3, 2, 4, 2),
    Sketcher.Constraint("Tangent", 4, 1, 5, 1),
    Sketcher.Constraint("Tangent", 5, 2, 6, 1),
    Sketcher.Constraint("Tangent", 6, 2, 7, 1),
    Sketcher.Constraint("Tangent", 7, 2, 8, 2),
    Sketcher.Constraint("Tangent", 8, 1, 9, 1),
    Sketcher.Constraint("Coincident", 9, 2, 10, 1),
    Sketcher.Constraint("Tangent", 10, 2, 11, 2),
    Sketcher.Constraint("Tangent", 11, 1, 12, 1),
    Sketcher.Constraint("Tangent", 12, 2, 13, 1),
    Sketcher.Constraint("Tangent", 13, 2, 14, 1),
    Sketcher.Constraint("Tangent", 14, 2, 0, 1),
    Sketcher.Constraint("Horizontal", 1),
    Sketcher.Constraint("Vertical", 3),
    Sketcher.Constraint("Horizontal", 5),
    Sketcher.Constraint("Vertical", 7),
    Sketcher.Constraint("Vertical", 10),
    Sketcher.Constraint("Horizontal", 12),
    Sketcher.Constraint("Vertical", 14),
    Sketcher.Constraint("Equal", 0, 2),
    Sketcher.Constraint("Equal", 4, 6),
    Sketcher.Constraint("Equal", 6, 8),
    Sketcher.Constraint("Equal", 2, 11),
    Sketcher.Constraint("Equal", 8, 13),
    Sketcher.Constraint("Radius", 0, 1.0),
    Sketcher.Constraint("Radius", 4, 2.0),
    Sketcher.Constraint("DistanceX", 5, 1, 5, 2, 1.0),
    Sketcher.Constraint("DistanceX", 12, 2, 12, 1, 4.0),
    Sketcher.Constraint("DistanceY", 3, 1, 3, 2, 17.0),
    Sketcher.Constraint("DistanceY", 14, 2, 14, 1, 20.0),
    Sketcher.Constraint("DistanceX", 1, 1, 1, 2, 1.5),
    Sketcher.Constraint("DistanceX", 2, 3, -1, 1, 16.0),
    Sketcher.Constraint("DistanceY", 0, 3, -1, 1, 14.5),
    Sketcher.Constraint("DistanceY", 10, 2, 10, 1, 0.447368),
    Sketcher.Constraint("DistanceY", 7, 1, 7, 2, 1.605426),
])
sketch3.setExpression("Constraints[27]", "Params.sketch3_radius")
sketch3.setExpression("Constraints[28]", "Params.sketch3_radius2")
sketch3.setExpression("Constraints[29]", "Params.sketch3_width")
sketch3.setExpression("Constraints[30]", "Params.sketch3_width2")
sketch3.setExpression("Constraints[31]", "Params.sketch3_height")
pad3 = body.newObject("PartDesign::Pad", "Pad002")
pad3.Profile = sketch3
pad3.setExpression("Length", "Params.pad3_length")

sketch4 = body.newObject("Sketcher::SketchObject", "Sketch003")
sketch4.AttachmentSupport = (doc.getObject("XY_Plane"), [""])
sketch4.MapMode = "FlatFace"
sketch4.AttachmentOffset = App.Placement(App.Vector(0, 0, 5), App.Rotation())
sketch4.addGeometry([
    Part.LineSegment(App.Vector(4.5, 22.5, 0), App.Vector(-9.5, 22.5, 0)),
    Part.ArcOfCircle(Part.Circle(App.Vector(-9.5, 20.5, 0), App.Vector(0, 0, 1), 2), math.radians(90), math.radians(180)),
    Part.LineSegment(App.Vector(-11.5, 20.5, 0), App.Vector(-11.5, 8.947368, 0)),
    Part.LineSegment(App.Vector(-11.5, 8.947368, 0), App.Vector(-8.691411, 9.982112, 0)),
    Part.LineSegment(App.Vector(-8.691411, 9.982112, 0), App.Vector(6.308589, 15.508428, 0)),
    Part.LineSegment(App.Vector(6.308589, 15.508428, 0), App.Vector(6.5, 15.578947, 0)),
    Part.LineSegment(App.Vector(6.5, 15.578947, 0), App.Vector(6.5, 20.5, 0)),
    Part.ArcOfCircle(Part.Circle(App.Vector(4.5, 20.5, 0), App.Vector(0, 0, 1), 2), math.radians(0), math.radians(90)),
], False)
sketch4.addConstraint([
    Sketcher.Constraint("Tangent", 0, 2, 1, 1),
    Sketcher.Constraint("Tangent", 1, 2, 2, 1),
    Sketcher.Constraint("Coincident", 2, 2, 3, 1),
    Sketcher.Constraint("Coincident", 3, 2, 4, 1),
    Sketcher.Constraint("Coincident", 4, 2, 5, 1),
    Sketcher.Constraint("Coincident", 5, 2, 6, 1),
    Sketcher.Constraint("Tangent", 6, 2, 7, 1),
    Sketcher.Constraint("Tangent", 7, 2, 0, 1),
    Sketcher.Constraint("Horizontal", 0),
    Sketcher.Constraint("Vertical", 2),
    Sketcher.Constraint("Vertical", 6),
    Sketcher.Constraint("Equal", 1, 7),
    Sketcher.Constraint("Parallel", 3, 4),
    Sketcher.Constraint("Parallel", 4, 5),
    Sketcher.Constraint("Radius", 1, 2.0),
    Sketcher.Constraint("DistanceX", 0, 2, 0, 1, 14.0),
    Sketcher.Constraint("DistanceX", 3, 2, 4, 2, 15.0),
    Sketcher.Constraint("DistanceX", 1, 3, -1, 1, 9.5),
    Sketcher.Constraint("DistanceY", -1, 1, 1, 3, 20.5),
    Sketcher.Constraint("DistanceY", 2, 2, 2, 1, 11.552632),
    Sketcher.Constraint("DistanceY", 6, 1, 6, 2, 4.921053),
    Sketcher.Constraint("DistanceX", 3, 2, -1, 1, 8.691411),
])
sketch4.setExpression("Constraints[14]", "Params.sketch4_radius")
sketch4.setExpression("Constraints[15]", "Params.sketch4_width")
pad4 = body.newObject("PartDesign::Pad", "Pad003")
pad4.Profile = sketch4
pad4.setExpression("Length", "Params.pad4_length")

sketch5 = body.newObject("Sketcher::SketchObject", "Sketch004")
sketch5.AttachmentSupport = (doc.getObject("XY_Plane"), [""])
sketch5.MapMode = "FlatFace"
sketch5.AttachmentOffset = App.Placement(App.Vector(0, 0, 5), App.Rotation())
sketch5.addGeometry([
    Part.ArcOfCircle(Part.Circle(App.Vector(10, -21.5, 0), App.Vector(0, 0, 1), 1), math.radians(180), math.radians(270)),
    Part.LineSegment(App.Vector(10, -22.5, 0), App.Vector(16.5, -22.5, 0)),
    Part.ArcOfCircle(Part.Circle(App.Vector(16.5, -20.5, 0), App.Vector(0, 0, 1), 2), math.radians(-90), math.radians(0)),
    Part.ArcOfCircle(Part.Circle(App.Vector(17.5, -20.5, 0), App.Vector(0, 0, 1), 1), math.radians(0), math.radians(90)),
    Part.LineSegment(App.Vector(17.5, -19.5, 0), App.Vector(10, -19.5, 0)),
    Part.ArcOfCircle(Part.Circle(App.Vector(10, -20.5, 0), App.Vector(0, 0, 1), 1), math.radians(90), math.radians(150)),
    Part.ArcOfCircle(Part.Circle(App.Vector(10, -20.5, 0), App.Vector(0, 0, 1), 1), math.radians(150), math.radians(180)),
    Part.LineSegment(App.Vector(9, -20.5, 0), App.Vector(9, -21.5, 0)),
], False)
sketch5.addConstraint([
    Sketcher.Constraint("Tangent", 0, 2, 1, 1),
    Sketcher.Constraint("Tangent", 1, 2, 2, 1),
    Sketcher.Constraint("Tangent", 2, 2, 3, 1),
    Sketcher.Constraint("Tangent", 3, 2, 4, 1),
    Sketcher.Constraint("Tangent", 4, 2, 5, 1),
    Sketcher.Constraint("Tangent", 5, 2, 6, 1),
    Sketcher.Constraint("Tangent", 6, 2, 7, 1),
    Sketcher.Constraint("Tangent", 7, 2, 0, 1),
    Sketcher.Constraint("Horizontal", 1),
    Sketcher.Constraint("Horizontal", 4),
    Sketcher.Constraint("Vertical", 7),
    Sketcher.Constraint("Equal", 0, 3),
    Sketcher.Constraint("Equal", 3, 5),
    Sketcher.Constraint("Equal", 5, 6),
    Sketcher.Constraint("Horizontal", 2, 3, 3, 3),
    Sketcher.Constraint("Radius", 0, 1.0),
    Sketcher.Constraint("Radius", 2, 2.0),
    Sketcher.Constraint("DistanceX", 1, 1, 1, 2, 6.5),
    Sketcher.Constraint("DistanceX", -1, 1, 0, 3, 10.0),
    Sketcher.Constraint("DistanceY", 5, 2, -1, 1, 20.0),
    Sketcher.Constraint("DistanceY", 0, 3, -1, 1, 21.5),
])
sketch5.setExpression("Constraints[15]", "Params.sketch5_radius")
sketch5.setExpression("Constraints[16]", "Params.sketch5_radius2")
sketch5.setExpression("Constraints[17]", "Params.sketch5_width")
pad5 = body.newObject("PartDesign::Pad", "Pad004")
pad5.Profile = sketch5
pad5.setExpression("Length", "Params.pad5_length")

sketch6 = body.newObject("Sketcher::SketchObject", "Sketch005")
sketch6.AttachmentSupport = (doc.getObject("XY_Plane"), [""])
sketch6.MapMode = "FlatFace"
sketch6.AttachmentOffset = App.Placement(App.Vector(0, 0, 5), App.Rotation())
sketch6.addGeometry([
    Part.ArcOfCircle(Part.Circle(App.Vector(15.5, 11.5, 0), App.Vector(0, 0, 1), 1), math.radians(-90), math.radians(0)),
    Part.ArcOfCircle(Part.Circle(App.Vector(15.5, 11.5, 0), App.Vector(0, 0, 1), 1), math.radians(0), math.radians(90)),
    Part.LineSegment(App.Vector(15.5, 12.5, 0), App.Vector(10, 12.5, 0)),
    Part.ArcOfCircle(Part.Circle(App.Vector(10, 11.5, 0), App.Vector(0, 0, 1), 1), math.radians(90), math.radians(180)),
    Part.ArcOfCircle(Part.Circle(App.Vector(10, 11.5, 0), App.Vector(0, 0, 1), 1), math.radians(180), math.radians(270)),
    Part.LineSegment(App.Vector(10, 10.5, 0), App.Vector(15.5, 10.5, 0)),
    Part.ArcOfCircle(Part.Circle(App.Vector(17.5, 2.5, 0), App.Vector(0, 0, 1), 1), math.radians(-90), math.radians(0)),
    Part.LineSegment(App.Vector(18.5, 2.5, 0), App.Vector(18.5, 3.5, 0)),
    Part.ArcOfCircle(Part.Circle(App.Vector(17.5, 3.5, 0), App.Vector(0, 0, 1), 1), math.radians(0), math.radians(90)),
    Part.LineSegment(App.Vector(17.5, 4.5, 0), App.Vector(10, 4.5, 0)),
    Part.ArcOfCircle(Part.Circle(App.Vector(10, 3.5, 0), App.Vector(0, 0, 1), 1), math.radians(90), math.radians(180)),
    Part.LineSegment(App.Vector(9, 3.5, 0), App.Vector(9, 2.5, 0)),
    Part.ArcOfCircle(Part.Circle(App.Vector(10, 2.5, 0), App.Vector(0, 0, 1), 1), math.radians(180), math.radians(270)),
    Part.LineSegment(App.Vector(10, 1.5, 0), App.Vector(17.5, 1.5, 0)),
], False)
sketch6.addConstraint([
    Sketcher.Constraint("Tangent", 0, 2, 1, 1),
    Sketcher.Constraint("Tangent", 1, 2, 2, 1),
    Sketcher.Constraint("Tangent", 2, 2, 3, 1),
    Sketcher.Constraint("Tangent", 3, 2, 4, 1),
    Sketcher.Constraint("Tangent", 4, 2, 5, 1),
    Sketcher.Constraint("Tangent", 5, 2, 0, 1),
    Sketcher.Constraint("Tangent", 6, 2, 7, 1),
    Sketcher.Constraint("Tangent", 7, 2, 8, 1),
    Sketcher.Constraint("Tangent", 8, 2, 9, 1),
    Sketcher.Constraint("Tangent", 9, 2, 10, 1),
    Sketcher.Constraint("Tangent", 10, 2, 11, 1),
    Sketcher.Constraint("Tangent", 11, 2, 12, 1),
    Sketcher.Constraint("Tangent", 12, 2, 13, 1),
    Sketcher.Constraint("Tangent", 13, 2, 6, 1),
    Sketcher.Constraint("Horizontal", 2),
    Sketcher.Constraint("Horizontal", 5),
    Sketcher.Constraint("Vertical", 7),
    Sketcher.Constraint("Horizontal", 9),
    Sketcher.Constraint("Vertical", 11),
    Sketcher.Constraint("Horizontal", 13),
    Sketcher.Constraint("Equal", 0, 1),
    Sketcher.Constraint("Equal", 1, 3),
    Sketcher.Constraint("Equal", 4, 6),
    Sketcher.Constraint("Equal", 6, 8),
    Sketcher.Constraint("Equal", 8, 10),
    Sketcher.Constraint("Equal", 10, 12),
    Sketcher.Constraint("Horizontal", 4, 3, 0, 2),
    Sketcher.Constraint("Horizontal", 0, 2, 3, 2),
    Sketcher.Constraint("Vertical", 4, 3, 10, 3),
    Sketcher.Constraint("Radius", 0, 1.0),
    Sketcher.Constraint("DistanceY", 7, 1, 7, 2, 1.0),
    Sketcher.Constraint("DistanceX", 2, 2, 2, 1, 5.5),
    Sketcher.Constraint("DistanceX", 9, 2, 9, 1, 7.5),
    Sketcher.Constraint("DistanceX", -1, 1, 3, 3, 10.0),
    Sketcher.Constraint("DistanceY", 6, 3, 0, 3, 9.0),
    Sketcher.Constraint("DistanceY", -1, 1, 0, 3, 11.5),
])
sketch6.setExpression("Constraints[29]", "Params.sketch6_radius")
sketch6.setExpression("Constraints[30]", "Params.sketch6_height")
sketch6.setExpression("Constraints[31]", "Params.sketch6_width")
sketch6.setExpression("Constraints[32]", "Params.sketch6_width2")
pad6 = body.newObject("PartDesign::Pad", "Pad005")
pad6.Profile = sketch6
pad6.setExpression("Length", "Params.pad6_length")

sketch7 = body.newObject("Sketcher::SketchObject", "Sketch006")
sketch7.AttachmentSupport = (doc.getObject("XY_Plane"), [""])
sketch7.MapMode = "FlatFace"
sketch7.AttachmentOffset = App.Placement(App.Vector(0, 0, 5), App.Rotation())
sketch7.addGeometry([
    Part.LineSegment(App.Vector(12.25, 10.5, 0), App.Vector(12.25, 4.5, 0)),
    Part.LineSegment(App.Vector(12.25, 4.5, 0), App.Vector(13.25, 4.5, 0)),
    Part.LineSegment(App.Vector(13.25, 4.5, 0), App.Vector(13.25, 10.5, 0)),
    Part.LineSegment(App.Vector(13.25, 10.5, 0), App.Vector(12.25, 10.5, 0)),
    Part.ArcOfCircle(Part.Circle(App.Vector(17.5, -20.5, 0), App.Vector(0, 0, 1), 1), math.radians(0), math.radians(90)),
    Part.LineSegment(App.Vector(18.5, -20.5, 0), App.Vector(18.5, 2.5, 0)),
    Part.ArcOfCircle(Part.Circle(App.Vector(17.5, 2.5, 0), App.Vector(0, 0, 1), 1), math.radians(-90), math.radians(0)),
    Part.LineSegment(App.Vector(17.5, 1.5, 0), App.Vector(14, 1.5, 0)),
    Part.ArcOfCircle(Part.Circle(App.Vector(14, 0.5, 0), App.Vector(0, 0, 1), 1), math.radians(0), math.radians(90)),
    Part.LineSegment(App.Vector(15, 0.5, 0), App.Vector(15, -19, 0)),
    Part.ArcOfCircle(Part.Circle(App.Vector(14, -19, 0), App.Vector(0, 0, 1), 1), math.radians(-30), math.radians(0)),
    Part.LineSegment(App.Vector(14.866025, -19.5, 0), App.Vector(17.5, -19.5, 0)),
], False)
sketch7.addConstraint([
    Sketcher.Constraint("Coincident", 0, 2, 1, 1),
    Sketcher.Constraint("Coincident", 1, 2, 2, 1),
    Sketcher.Constraint("Coincident", 2, 2, 3, 1),
    Sketcher.Constraint("Coincident", 3, 2, 0, 1),
    Sketcher.Constraint("Tangent", 4, 1, 5, 1),
    Sketcher.Constraint("Tangent", 5, 2, 6, 2),
    Sketcher.Constraint("Tangent", 6, 1, 7, 1),
    Sketcher.Constraint("Tangent", 7, 2, 8, 2),
    Sketcher.Constraint("Tangent", 8, 1, 9, 1),
    Sketcher.Constraint("Tangent", 9, 2, 10, 2),
    Sketcher.Constraint("Coincident", 10, 1, 11, 1),
    Sketcher.Constraint("Tangent", 11, 2, 4, 2),
    Sketcher.Constraint("Vertical", 0),
    Sketcher.Constraint("Horizontal", 1),
    Sketcher.Constraint("Vertical", 2),
    Sketcher.Constraint("Horizontal", 3),
    Sketcher.Constraint("Vertical", 5),
    Sketcher.Constraint("Horizontal", 7),
    Sketcher.Constraint("Vertical", 9),
    Sketcher.Constraint("Horizontal", 11),
    Sketcher.Constraint("Equal", 4, 6),
    Sketcher.Constraint("Equal", 6, 8),
    Sketcher.Constraint("Equal", 8, 10),
    Sketcher.Constraint("Radius", 4, 1.0),
    Sketcher.Constraint("DistanceX", 1, 1, 1, 2, 1.0),
    Sketcher.Constraint("DistanceY", 0, 2, 0, 1, 6.0),
    Sketcher.Constraint("DistanceY", 5, 1, 5, 2, 23.0),
    Sketcher.Constraint("DistanceX", 7, 2, 7, 1, 3.5),
    Sketcher.Constraint("DistanceY", 9, 2, 9, 1, 19.5),
    Sketcher.Constraint("DistanceX", -1, 1, 8, 3, 14.0),
    Sketcher.Constraint("DistanceY", 10, 3, -1, 1, 19.0),
    Sketcher.Constraint("DistanceY", 8, 3, 0, 2, 4.0),
    Sketcher.Constraint("DistanceX", -1, 1, 0, 2, 12.25),
])
sketch7.setExpression("Constraints[23]", "Params.sketch7_radius")
sketch7.setExpression("Constraints[24]", "Params.sketch7_width")
sketch7.setExpression("Constraints[25]", "Params.sketch7_height")
sketch7.setExpression("Constraints[26]", "Params.sketch7_height2")
sketch7.setExpression("Constraints[27]", "Params.sketch7_width2")
pad7 = body.newObject("PartDesign::Pad", "Pad006")
pad7.Profile = sketch7
pad7.setExpression("Length", "Params.pad7_length")

doc.recompute()
